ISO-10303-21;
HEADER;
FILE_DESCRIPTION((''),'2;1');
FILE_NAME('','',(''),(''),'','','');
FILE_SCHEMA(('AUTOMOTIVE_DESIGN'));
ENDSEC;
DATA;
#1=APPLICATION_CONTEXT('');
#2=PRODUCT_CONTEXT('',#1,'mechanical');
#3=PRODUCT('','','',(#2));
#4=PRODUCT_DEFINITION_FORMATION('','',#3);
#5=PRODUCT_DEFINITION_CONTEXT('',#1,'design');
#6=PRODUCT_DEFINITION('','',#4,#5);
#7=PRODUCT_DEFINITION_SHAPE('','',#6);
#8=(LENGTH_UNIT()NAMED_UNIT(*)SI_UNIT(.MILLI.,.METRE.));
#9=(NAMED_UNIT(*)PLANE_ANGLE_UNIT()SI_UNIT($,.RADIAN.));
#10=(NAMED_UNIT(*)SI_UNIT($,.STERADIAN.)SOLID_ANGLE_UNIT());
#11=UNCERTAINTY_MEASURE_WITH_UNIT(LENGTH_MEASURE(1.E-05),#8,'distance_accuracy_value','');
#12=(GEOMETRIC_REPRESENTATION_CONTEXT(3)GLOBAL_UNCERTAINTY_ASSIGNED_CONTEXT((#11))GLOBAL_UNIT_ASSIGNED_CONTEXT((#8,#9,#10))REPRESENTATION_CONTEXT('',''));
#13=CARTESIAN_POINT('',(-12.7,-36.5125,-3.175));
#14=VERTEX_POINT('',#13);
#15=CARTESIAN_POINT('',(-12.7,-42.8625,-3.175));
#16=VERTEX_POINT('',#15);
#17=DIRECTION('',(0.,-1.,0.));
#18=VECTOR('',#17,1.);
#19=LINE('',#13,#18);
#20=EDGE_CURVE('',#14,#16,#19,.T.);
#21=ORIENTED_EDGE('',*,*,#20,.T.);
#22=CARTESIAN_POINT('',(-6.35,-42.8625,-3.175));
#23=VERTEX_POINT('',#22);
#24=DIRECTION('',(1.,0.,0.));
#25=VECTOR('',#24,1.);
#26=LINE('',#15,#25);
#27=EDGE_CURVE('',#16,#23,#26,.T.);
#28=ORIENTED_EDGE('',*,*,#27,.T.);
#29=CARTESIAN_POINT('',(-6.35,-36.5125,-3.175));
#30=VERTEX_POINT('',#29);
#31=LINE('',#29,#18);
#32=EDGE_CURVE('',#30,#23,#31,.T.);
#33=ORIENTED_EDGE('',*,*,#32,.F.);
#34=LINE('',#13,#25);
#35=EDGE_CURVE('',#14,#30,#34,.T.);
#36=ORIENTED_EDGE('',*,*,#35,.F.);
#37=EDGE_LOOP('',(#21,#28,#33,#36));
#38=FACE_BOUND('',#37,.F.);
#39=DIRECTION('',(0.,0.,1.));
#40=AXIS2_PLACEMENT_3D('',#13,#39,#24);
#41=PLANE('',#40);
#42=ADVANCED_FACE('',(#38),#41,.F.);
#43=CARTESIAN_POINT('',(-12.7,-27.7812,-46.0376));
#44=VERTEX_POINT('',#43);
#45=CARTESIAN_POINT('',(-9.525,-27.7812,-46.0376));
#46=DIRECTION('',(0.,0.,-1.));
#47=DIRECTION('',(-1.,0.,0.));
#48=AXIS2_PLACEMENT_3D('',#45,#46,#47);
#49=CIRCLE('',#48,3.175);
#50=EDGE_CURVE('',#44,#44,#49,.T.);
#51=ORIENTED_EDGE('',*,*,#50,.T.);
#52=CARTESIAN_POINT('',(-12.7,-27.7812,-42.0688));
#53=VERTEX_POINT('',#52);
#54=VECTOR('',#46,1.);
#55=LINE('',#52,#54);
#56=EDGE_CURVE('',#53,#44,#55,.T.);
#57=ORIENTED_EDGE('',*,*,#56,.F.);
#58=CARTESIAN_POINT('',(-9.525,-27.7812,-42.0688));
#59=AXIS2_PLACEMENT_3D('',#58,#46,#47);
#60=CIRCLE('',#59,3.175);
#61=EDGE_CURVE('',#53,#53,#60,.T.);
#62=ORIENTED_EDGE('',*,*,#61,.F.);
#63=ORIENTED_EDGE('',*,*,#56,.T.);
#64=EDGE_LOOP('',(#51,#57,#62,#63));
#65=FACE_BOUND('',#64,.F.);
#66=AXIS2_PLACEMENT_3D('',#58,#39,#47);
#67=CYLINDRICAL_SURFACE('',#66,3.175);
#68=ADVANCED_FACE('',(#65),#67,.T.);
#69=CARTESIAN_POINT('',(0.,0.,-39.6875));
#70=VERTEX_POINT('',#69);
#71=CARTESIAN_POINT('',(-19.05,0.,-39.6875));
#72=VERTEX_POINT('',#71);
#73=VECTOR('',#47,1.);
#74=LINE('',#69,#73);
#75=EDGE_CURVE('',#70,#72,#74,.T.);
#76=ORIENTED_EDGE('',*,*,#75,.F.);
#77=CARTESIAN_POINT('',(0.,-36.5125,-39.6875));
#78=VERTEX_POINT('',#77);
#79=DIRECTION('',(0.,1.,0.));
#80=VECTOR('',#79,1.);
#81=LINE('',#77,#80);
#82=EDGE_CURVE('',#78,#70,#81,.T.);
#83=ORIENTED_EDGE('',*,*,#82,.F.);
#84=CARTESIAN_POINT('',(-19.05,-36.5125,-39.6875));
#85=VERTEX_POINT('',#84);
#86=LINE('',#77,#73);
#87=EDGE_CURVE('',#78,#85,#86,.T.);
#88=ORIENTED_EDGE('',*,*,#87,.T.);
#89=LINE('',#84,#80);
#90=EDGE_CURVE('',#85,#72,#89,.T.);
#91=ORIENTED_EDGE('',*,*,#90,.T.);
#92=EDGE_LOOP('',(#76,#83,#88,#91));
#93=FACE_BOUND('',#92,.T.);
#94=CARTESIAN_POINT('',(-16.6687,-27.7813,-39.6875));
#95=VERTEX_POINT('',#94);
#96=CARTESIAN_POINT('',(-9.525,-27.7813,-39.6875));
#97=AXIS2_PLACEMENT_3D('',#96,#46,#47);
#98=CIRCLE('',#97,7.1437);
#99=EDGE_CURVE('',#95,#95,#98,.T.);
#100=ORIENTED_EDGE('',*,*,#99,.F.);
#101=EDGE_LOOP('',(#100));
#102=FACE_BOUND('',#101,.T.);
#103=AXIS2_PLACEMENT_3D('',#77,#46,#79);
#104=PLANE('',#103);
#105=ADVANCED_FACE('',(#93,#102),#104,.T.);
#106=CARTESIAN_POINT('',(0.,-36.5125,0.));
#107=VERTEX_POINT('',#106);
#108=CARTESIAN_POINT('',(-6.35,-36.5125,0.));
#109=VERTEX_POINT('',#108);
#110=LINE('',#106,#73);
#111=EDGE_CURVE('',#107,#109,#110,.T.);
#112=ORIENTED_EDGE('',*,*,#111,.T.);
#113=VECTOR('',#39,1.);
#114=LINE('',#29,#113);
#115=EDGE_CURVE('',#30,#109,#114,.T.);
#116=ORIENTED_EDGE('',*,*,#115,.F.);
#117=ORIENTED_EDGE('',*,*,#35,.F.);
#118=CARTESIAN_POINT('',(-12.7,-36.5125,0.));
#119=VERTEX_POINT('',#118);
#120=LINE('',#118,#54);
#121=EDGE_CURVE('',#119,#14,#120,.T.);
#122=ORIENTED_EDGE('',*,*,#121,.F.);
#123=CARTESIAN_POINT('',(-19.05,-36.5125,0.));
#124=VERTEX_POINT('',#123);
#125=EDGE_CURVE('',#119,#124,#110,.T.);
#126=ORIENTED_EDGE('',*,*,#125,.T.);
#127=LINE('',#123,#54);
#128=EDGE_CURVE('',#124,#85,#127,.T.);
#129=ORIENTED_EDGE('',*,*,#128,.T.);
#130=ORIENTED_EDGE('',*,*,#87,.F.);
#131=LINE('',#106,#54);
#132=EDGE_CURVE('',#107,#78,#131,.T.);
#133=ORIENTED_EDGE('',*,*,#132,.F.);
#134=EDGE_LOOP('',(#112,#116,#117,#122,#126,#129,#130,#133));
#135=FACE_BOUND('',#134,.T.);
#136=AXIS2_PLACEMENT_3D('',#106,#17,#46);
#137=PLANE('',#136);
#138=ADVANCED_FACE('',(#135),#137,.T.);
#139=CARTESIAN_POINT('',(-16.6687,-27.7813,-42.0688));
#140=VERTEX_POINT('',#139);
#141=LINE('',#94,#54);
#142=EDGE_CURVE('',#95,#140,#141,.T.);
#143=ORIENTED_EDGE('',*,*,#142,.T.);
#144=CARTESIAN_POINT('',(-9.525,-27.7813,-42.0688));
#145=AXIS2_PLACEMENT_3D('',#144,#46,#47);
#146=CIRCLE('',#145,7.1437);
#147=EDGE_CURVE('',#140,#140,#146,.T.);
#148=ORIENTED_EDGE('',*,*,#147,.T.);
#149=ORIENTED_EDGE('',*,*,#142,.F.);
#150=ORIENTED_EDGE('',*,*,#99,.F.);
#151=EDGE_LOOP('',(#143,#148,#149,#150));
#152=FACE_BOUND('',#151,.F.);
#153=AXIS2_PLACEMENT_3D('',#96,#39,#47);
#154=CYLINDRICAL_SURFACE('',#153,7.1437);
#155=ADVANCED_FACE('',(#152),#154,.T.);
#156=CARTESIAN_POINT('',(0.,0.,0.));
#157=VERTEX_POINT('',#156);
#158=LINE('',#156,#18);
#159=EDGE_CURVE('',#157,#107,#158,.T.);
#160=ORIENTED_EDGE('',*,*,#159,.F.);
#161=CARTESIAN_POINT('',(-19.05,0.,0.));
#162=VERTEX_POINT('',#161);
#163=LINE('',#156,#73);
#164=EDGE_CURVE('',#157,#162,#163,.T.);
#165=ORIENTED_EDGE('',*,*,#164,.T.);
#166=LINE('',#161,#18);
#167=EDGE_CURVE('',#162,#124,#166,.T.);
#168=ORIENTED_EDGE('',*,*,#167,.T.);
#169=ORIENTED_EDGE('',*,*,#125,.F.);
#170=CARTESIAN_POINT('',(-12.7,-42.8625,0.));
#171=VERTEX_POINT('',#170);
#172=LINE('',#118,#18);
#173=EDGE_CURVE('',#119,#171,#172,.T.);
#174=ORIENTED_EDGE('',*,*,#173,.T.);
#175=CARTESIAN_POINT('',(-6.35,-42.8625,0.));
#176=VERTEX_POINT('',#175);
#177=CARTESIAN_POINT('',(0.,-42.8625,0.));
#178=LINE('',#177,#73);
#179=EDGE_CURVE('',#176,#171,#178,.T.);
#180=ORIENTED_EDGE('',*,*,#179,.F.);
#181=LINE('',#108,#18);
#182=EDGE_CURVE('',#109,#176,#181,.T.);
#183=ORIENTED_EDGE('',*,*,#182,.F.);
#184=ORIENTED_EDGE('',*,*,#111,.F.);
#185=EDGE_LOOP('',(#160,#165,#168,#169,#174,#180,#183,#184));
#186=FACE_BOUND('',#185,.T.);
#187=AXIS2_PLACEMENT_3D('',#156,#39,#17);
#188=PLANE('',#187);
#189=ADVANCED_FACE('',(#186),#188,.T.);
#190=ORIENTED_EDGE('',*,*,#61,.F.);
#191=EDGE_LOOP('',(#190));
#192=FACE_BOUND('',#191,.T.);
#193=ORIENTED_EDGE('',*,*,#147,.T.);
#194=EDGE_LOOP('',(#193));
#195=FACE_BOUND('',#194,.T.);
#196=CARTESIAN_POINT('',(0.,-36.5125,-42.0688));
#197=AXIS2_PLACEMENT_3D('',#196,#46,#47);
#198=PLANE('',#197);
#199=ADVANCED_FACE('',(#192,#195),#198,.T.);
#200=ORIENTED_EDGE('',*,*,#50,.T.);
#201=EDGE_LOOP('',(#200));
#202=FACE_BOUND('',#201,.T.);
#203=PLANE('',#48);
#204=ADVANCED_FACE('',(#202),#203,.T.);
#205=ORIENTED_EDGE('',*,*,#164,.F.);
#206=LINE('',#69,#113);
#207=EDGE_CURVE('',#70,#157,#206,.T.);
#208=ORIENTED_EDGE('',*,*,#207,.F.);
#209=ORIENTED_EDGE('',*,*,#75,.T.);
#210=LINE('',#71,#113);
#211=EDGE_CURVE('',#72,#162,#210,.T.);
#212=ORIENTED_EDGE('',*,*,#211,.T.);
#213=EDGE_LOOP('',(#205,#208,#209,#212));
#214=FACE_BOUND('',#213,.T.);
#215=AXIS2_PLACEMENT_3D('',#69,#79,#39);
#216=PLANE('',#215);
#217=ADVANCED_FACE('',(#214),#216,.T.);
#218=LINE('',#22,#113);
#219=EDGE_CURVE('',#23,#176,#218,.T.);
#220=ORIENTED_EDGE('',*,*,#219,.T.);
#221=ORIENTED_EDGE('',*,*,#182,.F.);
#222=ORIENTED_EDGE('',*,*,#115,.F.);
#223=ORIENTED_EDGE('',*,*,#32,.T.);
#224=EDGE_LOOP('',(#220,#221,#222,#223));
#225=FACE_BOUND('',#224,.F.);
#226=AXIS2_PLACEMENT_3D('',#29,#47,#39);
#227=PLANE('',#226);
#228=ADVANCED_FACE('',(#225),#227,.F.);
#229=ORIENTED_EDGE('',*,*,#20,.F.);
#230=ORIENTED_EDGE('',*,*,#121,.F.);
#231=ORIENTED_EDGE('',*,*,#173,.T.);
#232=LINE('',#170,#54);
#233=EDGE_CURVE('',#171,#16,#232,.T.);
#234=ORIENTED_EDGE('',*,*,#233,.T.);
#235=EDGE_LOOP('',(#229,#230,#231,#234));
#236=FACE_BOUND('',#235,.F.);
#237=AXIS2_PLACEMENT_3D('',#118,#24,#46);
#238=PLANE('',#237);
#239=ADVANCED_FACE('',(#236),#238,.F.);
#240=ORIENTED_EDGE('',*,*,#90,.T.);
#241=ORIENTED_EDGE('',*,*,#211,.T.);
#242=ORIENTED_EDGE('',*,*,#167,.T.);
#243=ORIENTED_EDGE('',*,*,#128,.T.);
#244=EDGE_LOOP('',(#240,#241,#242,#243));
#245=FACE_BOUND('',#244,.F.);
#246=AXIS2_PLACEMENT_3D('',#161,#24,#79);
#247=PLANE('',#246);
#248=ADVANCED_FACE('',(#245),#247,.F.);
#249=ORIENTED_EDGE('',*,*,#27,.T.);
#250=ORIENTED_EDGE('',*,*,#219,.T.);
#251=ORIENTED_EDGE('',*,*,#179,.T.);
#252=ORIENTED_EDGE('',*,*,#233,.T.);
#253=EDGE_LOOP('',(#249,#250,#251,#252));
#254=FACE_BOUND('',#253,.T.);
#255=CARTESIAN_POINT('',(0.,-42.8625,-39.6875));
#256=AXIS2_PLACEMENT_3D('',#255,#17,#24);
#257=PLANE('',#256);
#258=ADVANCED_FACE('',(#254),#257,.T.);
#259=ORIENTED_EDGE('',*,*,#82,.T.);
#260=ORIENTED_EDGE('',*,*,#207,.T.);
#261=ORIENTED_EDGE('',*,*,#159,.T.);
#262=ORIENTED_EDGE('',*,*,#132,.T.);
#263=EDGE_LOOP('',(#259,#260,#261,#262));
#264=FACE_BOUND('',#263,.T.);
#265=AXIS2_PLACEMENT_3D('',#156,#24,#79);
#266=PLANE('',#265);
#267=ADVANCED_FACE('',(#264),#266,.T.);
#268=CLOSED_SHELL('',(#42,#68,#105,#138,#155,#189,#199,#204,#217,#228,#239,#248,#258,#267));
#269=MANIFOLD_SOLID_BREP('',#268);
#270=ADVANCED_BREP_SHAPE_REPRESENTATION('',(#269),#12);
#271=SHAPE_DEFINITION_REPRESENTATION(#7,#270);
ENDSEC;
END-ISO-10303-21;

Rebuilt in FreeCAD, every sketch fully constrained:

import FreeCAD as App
import Part
import Sketcher
from FreeCAD import Vector
Q = App.Units.Quantity


def add_polygon(sketch, points):
    """Adds a closed chain of lines whose ends are joined by coincident constraints."""
    first, n = sketch.GeometryCount, len(points)
    for a, b in zip(points, points[1:] + points[:1]):
        sketch.addGeometry(Part.LineSegment(App.Vector(*a, 0), App.Vector(*b, 0)), False)
    for i in range(n):
        sketch.addConstraint(Sketcher.Constraint("Coincident", first + i, 2, first + (i + 1) % n, 1))

doc = App.newDocument("Part")
body = doc.addObject("PartDesign::Body", "Body")

sketch1 = doc.addObject("Sketcher::SketchObject", "Sketch")
body.addObject(sketch1)
sketch1.AttachmentSupport = (doc.YZ_Plane, [""])
sketch1.MapMode = "FlatFace"
add_polygon(sketch1, [(0, -39.6875), (0, 0), (-36.5125, 0), (-36.5125, -39.6875)])
sketch1.addConstraint([
    Sketcher.Constraint("Vertical", 0),
    Sketcher.Constraint("Horizontal", 1),
    Sketcher.Constraint("Vertical", 2),
    Sketcher.Constraint("Horizontal", 3),
    Sketcher.Constraint("Coincident", 0, 2, -1, 1),
    Sketcher.Constraint("DistanceX", 1, 2, 1, 1, Q("1.4375 in")),
    Sketcher.Constraint("DistanceY", 0, 1, 0, 2, Q("1.5625 in")),
])
pad1 = doc.addObject("PartDesign::Pad", "Pad")
body.addObject(pad1)
pad1.Profile = sketch1
pad1.Length = Q("0.75 in")
pad1.Reversed = True

sketch2 = doc.addObject("Sketcher::SketchObject", "Sketch001")
body.addObject(sketch2)
sketch2.AttachmentSupport = (doc.XY_Plane, [""])
sketch2.MapMode = "FlatFace"
sketch2.AttachmentOffset = App.Placement(Vector(0, 0, -1.5625 * 25.4), App.Rotation())
sketch2.addGeometry(Part.Circle(Vector(-9.525, -27.7813, 0), Vector(0, 0, 1), 7.1437), False)
sketch2.addConstraint([
    Sketcher.Constraint("Diameter", 0, Q("0.5625 in")),
    Sketcher.Constraint("DistanceX", 0, 3, -1, 1, Q("0.375 in")),
    Sketcher.Constraint("DistanceY", 0, 3, -1, 1, Q("1.093752 in")),
])
pad2 = doc.addObject("PartDesign::Pad", "Pad001")
body.addObject(pad2)
pad2.Profile = sketch2
pad2.Length = Q("0.093752 in")
pad2.Reversed = True

sketch3 = doc.addObject("Sketcher::SketchObject", "Sketch002")
body.addObject(sketch3)
sketch3.AttachmentSupport = (doc.XY_Plane, [""])
sketch3.MapMode = "FlatFace"
sketch3.AttachmentOffset = App.Placement(Vector(0, 0, -1.656252 * 25.4), App.Rotation())
sketch3.addGeometry(Part.Circle(Vector(-9.525, -27.7812, 0), Vector(0, 0, 1), 3.175), False)
sketch3.addConstraint([
    Sketcher.Constraint("Diameter", 0, Q("0.25 in")),
    Sketcher.Constraint("DistanceX", 0, 3, -1, 1, Q("0.375 in")),
    Sketcher.Constraint("DistanceY", 0, 3, -1, 1, Q("1.093748 in")),
])
pad3 = doc.addObject("PartDesign::Pad", "Pad002")
body.addObject(pad3)
pad3.Profile = sketch3
pad3.Length = Q("0.156252 in")
pad3.Reversed = True

sketch4 = doc.addObject("Sketcher::SketchObject", "Sketch003")
body.addObject(sketch4)
sketch4.AttachmentSupport = (doc.XZ_Plane, [""])
sketch4.MapMode = "FlatFace"
sketch4.AttachmentOffset = App.Placement(Vector(0, 0, 1.4375 * 25.4), App.Rotation())
add_polygon(sketch4, [(-6.35, -3.175), (-6.35, 0), (-12.7, 0), (-12.7, -3.175)])
sketch4.addConstraint([
    Sketcher.Constraint("Vertical", 0),
    Sketcher.Constraint("Horizontal", 1),
    Sketcher.Constraint("Vertical", 2),
    Sketcher.Constraint("Horizontal", 3),
    Sketcher.Constraint("PointOnObject", 0, 2, -1),
    Sketcher.Constraint("DistanceX", 1, 2, 1, 1, Q("0.25 in")),
    Sketcher.Constraint("DistanceY", 0, 1, 0, 2, Q("0.125 in")),
    Sketcher.Constraint("DistanceX", 0, 2, -1, 1, Q("0.25 in")),
])
pad4 = doc.addObject("PartDesign::Pad", "Pad003")
body.addObject(pad4)
pad4.Profile = sketch4
pad4.Length = Q("0.25 in")

doc.recompute()
